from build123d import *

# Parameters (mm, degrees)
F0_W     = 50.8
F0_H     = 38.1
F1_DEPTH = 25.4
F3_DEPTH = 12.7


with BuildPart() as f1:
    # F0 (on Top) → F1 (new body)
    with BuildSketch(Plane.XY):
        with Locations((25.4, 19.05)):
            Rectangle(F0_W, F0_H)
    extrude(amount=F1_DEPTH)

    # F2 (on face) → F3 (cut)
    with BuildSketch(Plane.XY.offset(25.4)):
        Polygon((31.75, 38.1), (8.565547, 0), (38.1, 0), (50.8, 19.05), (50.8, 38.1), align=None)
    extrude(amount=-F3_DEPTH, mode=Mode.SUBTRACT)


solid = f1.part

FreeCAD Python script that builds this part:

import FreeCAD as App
import Part
import Sketcher
Q = App.Units.Quantity


def add_polygon(sketch, points):
    """Adds a closed chain of lines whose ends are joined by coincident constraints."""
    first, n = sketch.GeometryCount, len(points)
    for a, b in zip(points, points[1:] + points[:1]):
        sketch.addGeometry(Part.LineSegment(App.Vector(*a, 0), App.Vector(*b, 0)), False)
    for i in range(n):
        sketch.addConstraint(Sketcher.Constraint("Coincident", first + i, 2, first + (i + 1) % n, 1))

doc = App.newDocument("Part")
body = doc.addObject("PartDesign::Body", "Body")

sketch1 = body.newObject("Sketcher::SketchObject", "Sketch")
sketch1.AttachmentSupport = (doc.getObject("XY_Plane"), [""])
sketch1.MapMode = "FlatFace"
add_polygon(sketch1, [(0, 38), (0, 0), (51, 0), (51, 38)])
sketch1.addConstraint([
    Sketcher.Constraint("Vertical", 0),
    Sketcher.Constraint("Horizontal", 1),
    Sketcher.Constraint("Vertical", 2),
    Sketcher.Constraint("Horizontal", 3),
    Sketcher.Constraint("Coincident", 0, 2, -1, 1),
    Sketcher.Constraint("DistanceX", 1, 1, 1, 2, Q("2 in")),
    Sketcher.Constraint("DistanceY", 0, 2, 0, 1, Q("1.5 in")),
])
pad1 = body.newObject("PartDesign::Pad", "Pad")
pad1.Profile = sketch1
pad1.Length = Q("1 in")

sketch2 = body.newObject("Sketcher::SketchObject", "Sketch001")
sketch2.AttachmentSupport = (doc.getObject("XY_Plane"), [""])
sketch2.MapMode = "FlatFace"
sketch2.AttachmentOffset = App.Placement(App.Vector(0, 0, 1 * 25.4), App.Rotation())
add_polygon(sketch2, [(32, 38), (9, 0), (38, 0), (51, 19), (51, 38)])
sketch2.addConstraint([
    Sketcher.Constraint("Horizontal", 1),
    Sketcher.Constraint("Vertical", 3),
    Sketcher.Constraint("Horizontal", 4),
    Sketcher.Constraint("PointOnObject", 0, 2, -1),
    Sketcher.Constraint("Equal", 4, 3),
    Sketcher.Constraint("DistanceX", -1, 1, 2, 2, Q("2 in")),
    Sketcher.Constraint("DistanceX", 4, 2, 4, 1, Q("0.75 in")),
    Sketcher.Constraint("DistanceX", -1, 1, 1, 2, Q("1.5 in")),
    Sketcher.Constraint("DistanceY", -1, 1, 3, 2, Q("1.5 in")),
    Sketcher.Constraint("Distance", 0, Q("44.599651 mm")),
])
pocket1 = body.newObject("PartDesign::Pocket", "Pocket")
pocket1.Profile = sketch2
pocket1.Length = Q("0.5 in")

doc.recompute()
